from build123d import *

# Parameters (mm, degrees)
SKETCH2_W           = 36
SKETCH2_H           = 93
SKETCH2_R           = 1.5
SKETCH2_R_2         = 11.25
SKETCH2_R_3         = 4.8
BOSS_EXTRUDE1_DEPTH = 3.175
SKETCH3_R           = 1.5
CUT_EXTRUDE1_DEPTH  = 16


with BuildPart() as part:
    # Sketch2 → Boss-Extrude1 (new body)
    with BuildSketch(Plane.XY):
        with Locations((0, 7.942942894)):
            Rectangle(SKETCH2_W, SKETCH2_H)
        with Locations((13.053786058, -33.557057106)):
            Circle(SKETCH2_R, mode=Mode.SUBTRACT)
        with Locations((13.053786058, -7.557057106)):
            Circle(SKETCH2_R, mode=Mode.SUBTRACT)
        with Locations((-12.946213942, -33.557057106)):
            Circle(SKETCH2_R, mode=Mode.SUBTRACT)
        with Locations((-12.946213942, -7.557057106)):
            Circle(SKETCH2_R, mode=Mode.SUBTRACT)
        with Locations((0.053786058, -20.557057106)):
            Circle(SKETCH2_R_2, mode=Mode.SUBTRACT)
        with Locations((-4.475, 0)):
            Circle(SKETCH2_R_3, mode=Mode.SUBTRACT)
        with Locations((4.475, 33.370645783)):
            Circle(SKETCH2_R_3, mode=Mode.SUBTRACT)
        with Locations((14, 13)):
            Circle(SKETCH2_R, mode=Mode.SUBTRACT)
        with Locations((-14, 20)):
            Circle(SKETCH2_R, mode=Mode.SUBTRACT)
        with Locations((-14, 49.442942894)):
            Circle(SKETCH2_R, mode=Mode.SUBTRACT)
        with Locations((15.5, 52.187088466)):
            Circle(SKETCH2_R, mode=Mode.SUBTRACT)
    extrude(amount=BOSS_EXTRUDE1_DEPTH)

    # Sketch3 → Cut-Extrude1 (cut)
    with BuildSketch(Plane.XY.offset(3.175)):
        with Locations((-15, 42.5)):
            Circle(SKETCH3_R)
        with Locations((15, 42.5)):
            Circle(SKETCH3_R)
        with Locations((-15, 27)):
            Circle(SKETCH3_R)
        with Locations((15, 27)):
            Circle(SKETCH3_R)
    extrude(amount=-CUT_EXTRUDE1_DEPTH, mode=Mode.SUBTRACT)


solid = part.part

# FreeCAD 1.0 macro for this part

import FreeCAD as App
import Part
import Sketcher


def add_polygon(sketch, points):
    """Adds a closed chain of lines whose ends are joined by coincident constraints."""
    first, n = sketch.GeometryCount, len(points)
    for a, b in zip(points, points[1:] + points[:1]):
        sketch.addGeometry(Part.LineSegment(App.Vector(*a, 0), App.Vector(*b, 0)), False)
    for i in range(n):
        sketch.addConstraint(Sketcher.Constraint("Coincident", first + i, 2, first + (i + 1) % n, 1))

doc = App.newDocument("Part")
params = doc.addObject("Spreadsheet::Sheet", "Params")
for row, (alias, value) in enumerate([
    ("sketch1_diameter", "3 mm"),
    ("sketch1_diameter2", "22.5 mm"),
    ("sketch1_diameter3", "9.6 mm"),
    ("sketch1_width", "36 mm"),
    ("sketch1_height", "93 mm"),
    ("pad1_length", "3.175 mm"),
    ("sketch2_diameter", "3 mm"),
    ("pocket1_length", "16 mm"),
], start=1):
    params.set(f"A{row}", alias)
    params.set(f"B{row}", "=" + value)
    params.setAlias(f"B{row}", alias)

body = doc.addObject("PartDesign::Body", "Body")

# Sketch on XY plane
sketch1 = body.newObject("Sketcher::SketchObject", "Sketch")
sketch1.AttachmentSupport = (doc.getObject("XY_Plane"), [""])
sketch1.MapMode = "FlatFace"
add_polygon(sketch1, [(-18, 54.4), (-18, -38.6), (18, -38.6), (18, 54.4)])  # lines 0-3
sketch1.addGeometry(Part.Circle(App.Vector(-12.9, -33.6, 0), App.Vector(0, 0, 1), 1.5), False)  # 4
sketch1.addGeometry(Part.Circle(App.Vector(0.1, -20.6, 0), App.Vector(0, 0, 1), 11.2), False)  # 5
sketch1.addGeometry(Part.Circle(App.Vector(-12.9, -7.6, 0), App.Vector(0, 0, 1), 1.5), False)  # 6
sketch1.addGeometry(Part.Circle(App.Vector(-4.5, 0, 0), App.Vector(0, 0, 1), 4.8), False)  # 7
sketch1.addGeometry(Part.Circle(App.Vector(13.1, -33.6, 0), App.Vector(0, 0, 1), 1.5), False)  # 8
sketch1.addGeometry(Part.Circle(App.Vector(13.1, -7.6, 0), App.Vector(0, 0, 1), 1.5), False)  # 9
sketch1.addGeometry(Part.Circle(App.Vector(-14, 20, 0), App.Vector(0, 0, 1), 1.5), False)  # 10
sketch1.addGeometry(Part.Circle(App.Vector(-14, 49.4, 0), App.Vector(0, 0, 1), 1.5), False)  # 11
sketch1.addGeometry(Part.Circle(App.Vector(14, 13, 0), App.Vector(0, 0, 1), 1.5), False)  # 12
sketch1.addGeometry(Part.Circle(App.Vector(4.5, 33.4, 0), App.Vector(0, 0, 1), 4.8), False)  # 13
sketch1.addGeometry(Part.Circle(App.Vector(15.5, 52.2, 0), App.Vector(0, 0, 1), 1.5), False)  # 14
sketch1.addConstraint(Sketcher.Constraint("Vertical", 0))
sketch1.addConstraint(Sketcher.Constraint("Horizontal", 1))
sketch1.addConstraint(Sketcher.Constraint("Vertical", 2))
sketch1.addConstraint(Sketcher.Constraint("Horizontal", 3))
sketch1.addConstraint(Sketcher.Constraint("Equal", 4, 6))
sketch1.addConstraint(Sketcher.Constraint("Equal", 6, 8))
sketch1.addConstraint(Sketcher.Constraint("Equal", 8, 9))
sketch1.addConstraint(Sketcher.Constraint("Equal", 9, 10))
sketch1.addConstraint(Sketcher.Constraint("Equal", 10, 11))
sketch1.addConstraint(Sketcher.Constraint("Equal", 11, 12))
sketch1.addConstraint(Sketcher.Constraint("Equal", 7, 13))
sketch1.addConstraint(Sketcher.Constraint("Equal", 12, 14))
sketch1.addConstraint(Sketcher.Constraint("PointOnObject", 7, 3, -1))
sketch1.addConstraint(Sketcher.Constraint("Horizontal", 4, 3, 8, 3))
sketch1.addConstraint(Sketcher.Constraint("Horizontal", 6, 3, 9, 3))
sketch1.addConstraint(Sketcher.Constraint("Vertical", 4, 3, 6, 3))
sketch1.addConstraint(Sketcher.Constraint("Vertical", 8, 3, 9, 3))
sketch1.addConstraint(Sketcher.Constraint("Vertical", 10, 3, 11, 3))
sketch1.addConstraint(Sketcher.Constraint("Diameter", 4, 3.0))
sketch1.addConstraint(Sketcher.Constraint("Diameter", 5, 22.5))
sketch1.addConstraint(Sketcher.Constraint("Diameter", 7, 9.6))
sketch1.addConstraint(Sketcher.Constraint("DistanceX", 1, 1, 1, 2, 36.0))
sketch1.addConstraint(Sketcher.Constraint("DistanceY", 0, 2, 0, 1, 93.0))
sketch1.addConstraint(Sketcher.Constraint("DistanceX", 10, 3, -1, 1, 14.0))
sketch1.addConstraint(Sketcher.Constraint("DistanceY", -1, 1, 10, 3, 20.0))
sketch1.addConstraint(Sketcher.Constraint("DistanceX", -1, 1, 12, 3, 14.0))
sketch1.addConstraint(Sketcher.Constraint("DistanceY", -1, 1, 12, 3, 13.0))
sketch1.addConstraint(Sketcher.Constraint("DistanceX", 0, 2, -1, 1, 18.0))
sketch1.addConstraint(Sketcher.Constraint("DistanceX", 4, 3, 5, 3, 13.0))
sketch1.addConstraint(Sketcher.Constraint("DistanceY", 4, 3, 5, 3, 13.0))
sketch1.addConstraint(Sketcher.Constraint("DistanceY", 5, 3, 6, 3, 13.0))
sketch1.addConstraint(Sketcher.Constraint("DistanceX", 5, 3, 8, 3, 13.0))
sketch1.addConstraint(Sketcher.Constraint("DistanceY", 6, 3, 11, 3, 57.0))
sketch1.addConstraint(Sketcher.Constraint("DistanceY", 0, 2, 4, 3, 5.0))
sketch1.addConstraint(Sketcher.Constraint("DistanceX", -1, 1, 14, 3, 15.5))
sketch1.addConstraint(Sketcher.Constraint("DistanceX", 7, 3, 13, 3, 8.95))
sketch1.addConstraint(Sketcher.Constraint("DistanceX", 7, 3, -1, 1, 4.475))
sketch1.addConstraint(Sketcher.Constraint("DistanceY", -1, 1, 14, 3, 52.187088))
sketch1.addConstraint(Sketcher.Constraint("DistanceX", 4, 3, -1, 1, 12.946214))
sketch1.addConstraint(Sketcher.Constraint("DistanceY", 4, 3, -1, 1, 33.557057))
sketch1.addConstraint(Sketcher.Constraint("DistanceY", -1, 1, 13, 3, 33.370646))
sketch1.setExpression("Constraints[22]", "Params.sketch1_diameter")
sketch1.setExpression("Constraints[23]", "Params.sketch1_diameter2")
sketch1.setExpression("Constraints[24]", "Params.sketch1_diameter3")
sketch1.setExpression("Constraints[25]", "Params.sketch1_width")
sketch1.setExpression("Constraints[26]", "Params.sketch1_height")
pad1 = body.newObject("PartDesign::Pad", "Pad")
pad1.Profile = sketch1
pad1.setExpression("Length", "Params.pad1_length")

# Sketch on XY plane
sketch2 = body.newObject("Sketcher::SketchObject", "Sketch001")
sketch2.AttachmentSupport = (doc.getObject("XY_Plane"), [""])
sketch2.MapMode = "FlatFace"
sketch2.AttachmentOffset = App.Placement(App.Vector(0, 0, 3.175), App.Rotation())
sketch2.addGeometry(Part.Circle(App.Vector(-15, 42.5, 0), App.Vector(0, 0, 1), 1.5), False)
sketch2.addGeometry(Part.Circle(App.Vector(15, 42.5, 0), App.Vector(0, 0, 1), 1.5), False)
sketch2.addGeometry(Part.Circle(App.Vector(-15, 27, 0), App.Vector(0, 0, 1), 1.5), False)
sketch2.addGeometry(Part.Circle(App.Vector(15, 27, 0), App.Vector(0, 0, 1), 1.5), False)
sketch2.addConstraint(Sketcher.Constraint("Equal", 0, 1))
sketch2.addConstraint(Sketcher.Constraint("Equal", 1, 2))
sketch2.addConstraint(Sketcher.Constraint("Equal", 2, 3))
sketch2.addConstraint(Sketcher.Constraint("Symmetric", 0, 3, 1, 3, -2))
sketch2.addConstraint(Sketcher.Constraint("Symmetric", 2, 3, 3, 3, -2))
sketch2.addConstraint(Sketcher.Constraint("Vertical", 0, 3, 2, 3))
sketch2.addConstraint(Sketcher.Constraint("Diameter", 0, 3.0))
sketch2.addConstraint(Sketcher.Constraint("DistanceX", 0, 3, -1, 1, 15.0))
sketch2.addConstraint(Sketcher.Constraint("DistanceY", -1, 1, 2, 3, 27.0))
sketch2.addConstraint(Sketcher.Constraint("DistanceY", -1, 1, 0, 3, 42.5))
sketch2.setExpression("Constraints[6]", "Params.sketch2_diameter")
pocket1 = body.newObject("PartDesign::Pocket", "Pocket")
pocket1.Profile = sketch2
pocket1.setExpression("Length", "Params.pocket1_length")

doc.recompute()
